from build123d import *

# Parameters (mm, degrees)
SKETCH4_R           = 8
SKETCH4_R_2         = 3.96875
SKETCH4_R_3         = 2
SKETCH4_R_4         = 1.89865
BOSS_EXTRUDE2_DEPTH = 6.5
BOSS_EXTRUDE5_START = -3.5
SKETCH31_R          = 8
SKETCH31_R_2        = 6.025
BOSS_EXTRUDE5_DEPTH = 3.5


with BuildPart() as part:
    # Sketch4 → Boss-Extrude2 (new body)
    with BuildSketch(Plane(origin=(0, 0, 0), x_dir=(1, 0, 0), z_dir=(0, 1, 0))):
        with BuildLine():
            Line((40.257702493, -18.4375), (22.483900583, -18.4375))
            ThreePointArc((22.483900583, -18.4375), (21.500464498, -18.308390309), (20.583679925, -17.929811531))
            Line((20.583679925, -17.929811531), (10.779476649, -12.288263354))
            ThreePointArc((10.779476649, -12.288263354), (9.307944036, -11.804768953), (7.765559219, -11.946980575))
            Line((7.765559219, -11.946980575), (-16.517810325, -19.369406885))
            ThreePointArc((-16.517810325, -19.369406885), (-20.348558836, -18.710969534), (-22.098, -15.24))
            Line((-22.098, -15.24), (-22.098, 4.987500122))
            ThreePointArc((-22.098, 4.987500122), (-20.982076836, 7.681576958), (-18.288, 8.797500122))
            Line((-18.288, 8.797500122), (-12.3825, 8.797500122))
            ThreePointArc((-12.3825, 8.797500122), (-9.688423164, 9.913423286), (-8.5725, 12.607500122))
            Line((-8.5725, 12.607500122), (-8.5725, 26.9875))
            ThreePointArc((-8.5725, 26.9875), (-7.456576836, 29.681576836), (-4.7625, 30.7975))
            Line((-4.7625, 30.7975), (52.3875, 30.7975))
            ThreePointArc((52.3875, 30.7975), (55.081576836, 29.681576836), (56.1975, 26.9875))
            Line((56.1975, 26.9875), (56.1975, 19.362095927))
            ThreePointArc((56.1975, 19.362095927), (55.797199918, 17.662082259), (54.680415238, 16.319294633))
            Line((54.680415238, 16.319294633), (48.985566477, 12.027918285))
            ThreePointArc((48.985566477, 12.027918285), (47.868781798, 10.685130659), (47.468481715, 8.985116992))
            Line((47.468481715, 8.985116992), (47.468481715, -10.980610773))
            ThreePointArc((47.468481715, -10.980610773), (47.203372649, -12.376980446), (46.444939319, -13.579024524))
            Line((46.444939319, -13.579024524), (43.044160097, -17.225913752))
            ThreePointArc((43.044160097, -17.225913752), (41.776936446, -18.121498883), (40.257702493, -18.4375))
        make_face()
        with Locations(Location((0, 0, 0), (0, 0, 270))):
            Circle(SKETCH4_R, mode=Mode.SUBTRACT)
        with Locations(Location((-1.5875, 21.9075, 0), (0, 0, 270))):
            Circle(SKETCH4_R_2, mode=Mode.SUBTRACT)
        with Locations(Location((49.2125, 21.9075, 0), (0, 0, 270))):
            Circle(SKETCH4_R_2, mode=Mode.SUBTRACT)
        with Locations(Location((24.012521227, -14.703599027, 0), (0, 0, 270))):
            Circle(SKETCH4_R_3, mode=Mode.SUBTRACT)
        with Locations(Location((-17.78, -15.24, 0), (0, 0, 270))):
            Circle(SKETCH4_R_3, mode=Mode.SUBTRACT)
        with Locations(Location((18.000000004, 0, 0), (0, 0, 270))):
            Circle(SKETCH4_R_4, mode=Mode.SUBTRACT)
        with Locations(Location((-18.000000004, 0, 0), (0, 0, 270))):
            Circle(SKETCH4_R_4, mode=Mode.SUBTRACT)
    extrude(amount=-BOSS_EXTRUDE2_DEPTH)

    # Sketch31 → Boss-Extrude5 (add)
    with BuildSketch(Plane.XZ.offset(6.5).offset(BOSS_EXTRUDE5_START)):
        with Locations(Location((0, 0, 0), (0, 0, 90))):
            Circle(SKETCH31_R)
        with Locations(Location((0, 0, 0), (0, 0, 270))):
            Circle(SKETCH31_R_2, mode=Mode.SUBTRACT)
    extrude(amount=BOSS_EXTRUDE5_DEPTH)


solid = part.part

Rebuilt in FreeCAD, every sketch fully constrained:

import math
import FreeCAD as App
import Part
import Sketcher
from FreeCAD import Vector
Q = App.Units.Quantity

doc = App.newDocument("Part")
params = doc.addObject("Spreadsheet::Sheet", "Params")
for row, (alias, value) in enumerate([
    ("sketch1_diameter", "4 mm"),
    ("sketch1_diameter2", "16 mm"),
    ("sketch1_radius", "3.81 mm"),
    ("sketch1_width", "57.15 mm"),
    ("pad1_length", "6.5 mm"),
    ("sketch2_diameter", "16 mm"),
    ("sketch2_diameter2", "12.05 mm"),
    ("pad2_length", "3.5 mm"),
], start=1):
    params.set(f"A{row}", alias)
    params.set(f"B{row}", "=" + value)
    params.setAlias(f"B{row}", alias)

body = doc.addObject("PartDesign::Body", "Body")

# Sketch on XZ plane
sketch1 = body.newObject("Sketcher::SketchObject", "Sketch")
sketch1.AttachmentSupport = (doc.getObject("XZ_Plane"), [""])
sketch1.MapMode = "FlatFace"
sketch1.addGeometry([
    Part.LineSegment(Vector(22.5, 18.4, 0), Vector(40.3, 18.4, 0)),  # 0
    Part.ArcOfCircle(Part.Circle(Vector(40.3, 14.6, 0), Vector(0, 0, 1), 3.8), math.radians(43), math.radians(90)),  # 1
    Part.LineSegment(Vector(43, 17.2, 0), Vector(46.4, 13.6, 0)),  # 2
    Part.ArcOfCircle(Part.Circle(Vector(43.7, 11, 0), Vector(0, 0, 1), 3.8), math.radians(0), math.radians(43)),  # 3
    Part.LineSegment(Vector(47.5, 11, 0), Vector(47.5, -9, 0)),  # 4
    Part.ArcOfCircle(Part.Circle(Vector(51.3, -9, 0), Vector(0, 0, 1), 3.8), math.radians(-180), math.radians(-127)),  # 5
    Part.LineSegment(Vector(49, -12, 0), Vector(54.7, -16.3, 0)),  # 6
    Part.ArcOfCircle(Part.Circle(Vector(52.4, -19.4, 0), Vector(0, 0, 1), 3.8), math.radians(0), math.radians(53)),  # 7
    Part.LineSegment(Vector(56.2, -19.4, 0), Vector(56.2, -27, 0)),  # 8
    Part.ArcOfCircle(Part.Circle(Vector(52.4, -27, 0), Vector(0, 0, 1), 3.8), math.radians(-90), math.radians(0)),  # 9
    Part.LineSegment(Vector(52.4, -30.8, 0), Vector(-4.8, -30.8, 0)),  # 10
    Part.ArcOfCircle(Part.Circle(Vector(-4.8, -27, 0), Vector(0, 0, 1), 3.8), math.radians(-180), math.radians(-90)),  # 11
    Part.LineSegment(Vector(-8.6, -27, 0), Vector(-8.6, -12.6, 0)),  # 12
    Part.ArcOfCircle(Part.Circle(Vector(-12.4, -12.6, 0), Vector(0, 0, 1), 3.8), math.radians(0), math.radians(90)),  # 13
    Part.LineSegment(Vector(-12.4, -8.8, 0), Vector(-18.3, -8.8, 0)),  # 14
    Part.ArcOfCircle(Part.Circle(Vector(-18.3, -5, 0), Vector(0, 0, 1), 3.8), math.radians(-180), math.radians(-90)),  # 15
    Part.LineSegment(Vector(-22.1, -5, 0), Vector(-22.1, 15.2, 0)),  # 16
    Part.ArcOfCircle(Part.Circle(Vector(-17.8, 15.2, 0), Vector(0, 0, 1), 4.3), math.radians(73), math.radians(180)),  # 17
    Part.LineSegment(Vector(-16.5, 19.4, 0), Vector(7.8, 11.9, 0)),  # 18
    Part.ArcOfCircle(Part.Circle(Vector(8.9, 15.6, 0), Vector(0, 0, 1), 3.8), math.radians(-107), math.radians(-60)),  # 19
    Part.LineSegment(Vector(10.8, 12.3, 0), Vector(20.6, 17.9, 0)),  # 20
    Part.ArcOfCircle(Part.Circle(Vector(22.5, 14.6, 0), Vector(0, 0, 1), 3.8), math.radians(90), math.radians(120)),  # 21
    Part.Circle(Vector(24, 14.7, 0), Vector(0, 0, 1), 2),  # 22
    Part.Circle(Vector(18, 0, 0), Vector(0, 0, 1), 1.9),  # 23
    Part.Circle(Vector(-17.8, 15.2, 0), Vector(0, 0, 1), 2),  # 24
    Part.Circle(Vector(0, 0, 0), Vector(0, 0, 1), 8),  # 25
    Part.Circle(Vector(-18, 0, 0), Vector(0, 0, 1), 1.9),  # 26
    Part.Circle(Vector(49.2, -21.9, 0), Vector(0, 0, 1), 4),  # 27
    Part.Circle(Vector(-1.6, -21.9, 0), Vector(0, 0, 1), 4),  # 28
], False)
sketch1.addConstraint([
    Sketcher.Constraint("Tangent", 0, 2, 1, 2),
    Sketcher.Constraint("Tangent", 1, 1, 2, 1),
    Sketcher.Constraint("Tangent", 2, 2, 3, 2),
    Sketcher.Constraint("Tangent", 3, 1, 4, 1),
    Sketcher.Constraint("Tangent", 4, 2, 5, 1),
    Sketcher.Constraint("Tangent", 5, 2, 6, 1),
    Sketcher.Constraint("Tangent", 6, 2, 7, 2),
    Sketcher.Constraint("Tangent", 7, 1, 8, 1),
    Sketcher.Constraint("Tangent", 8, 2, 9, 2),
    Sketcher.Constraint("Tangent", 9, 1, 10, 1),
    Sketcher.Constraint("Tangent", 10, 2, 11, 2),
    Sketcher.Constraint("Tangent", 11, 1, 12, 1),
    Sketcher.Constraint("Tangent", 12, 2, 13, 1),
    Sketcher.Constraint("Tangent", 13, 2, 14, 1),
    Sketcher.Constraint("Tangent", 14, 2, 15, 2),
    Sketcher.Constraint("Tangent", 15, 1, 16, 1),
    Sketcher.Constraint("Tangent", 16, 2, 17, 2),
    Sketcher.Constraint("Tangent", 17, 1, 18, 1),
    Sketcher.Constraint("Tangent", 18, 2, 19, 1),
    Sketcher.Constraint("Tangent", 19, 2, 20, 1),
    Sketcher.Constraint("Tangent", 20, 2, 21, 2),
    Sketcher.Constraint("Tangent", 21, 1, 0, 1),
    Sketcher.Constraint("Horizontal", 0),
    Sketcher.Constraint("Vertical", 4),
    Sketcher.Constraint("Vertical", 8),
    Sketcher.Constraint("Horizontal", 10),
    Sketcher.Constraint("Vertical", 12),
    Sketcher.Constraint("Horizontal", 14),
    Sketcher.Constraint("Vertical", 16),
    Sketcher.Constraint("Coincident", 25, 3, -1, 1),
    Sketcher.Constraint("Coincident", 24, 3, 17, 3),
    Sketcher.Constraint("Equal", 1, 3),
    Sketcher.Constraint("Equal", 3, 5),
    Sketcher.Constraint("Equal", 5, 7),
    Sketcher.Constraint("Equal", 7, 9),
    Sketcher.Constraint("Equal", 9, 11),
    Sketcher.Constraint("Equal", 11, 13),
    Sketcher.Constraint("Equal", 13, 15),
    Sketcher.Constraint("Equal", 15, 19),
    Sketcher.Constraint("Equal", 19, 21),
    Sketcher.Constraint("Equal", 22, 24),
    Sketcher.Constraint("Equal", 23, 26),
    Sketcher.Constraint("Equal", 27, 28),
    Sketcher.Constraint("Symmetric", 23, 3, 26, 3, -1, 1),
    Sketcher.Constraint("PointOnObject", 23, 3, -1),
    Sketcher.Constraint("Horizontal", 27, 3, 28, 3),
    Sketcher.Constraint("Diameter", 22, Q("4 mm")),
    Sketcher.Constraint("Diameter", 25, Q("16 mm")),
    Sketcher.Constraint("Angle", 2, Q("-47 deg")),
    Sketcher.Constraint("Angle", 6, Q("-37 deg")),
    Sketcher.Constraint("Radius", 1, Q("3.81 mm")),
    Sketcher.Constraint("DistanceX", -1, 1, 23, 3, Q("18 mm")),
    Sketcher.Constraint("Radius", 17, Q("4.318 mm")),
    Sketcher.Constraint("DistanceY", 11, 3, 15, 3, Q("22 mm")),
    Sketcher.Constraint("Diameter", 23, Q("3.7973 mm")),
    Sketcher.Constraint("Diameter", 27, Q("7.9375 mm")),
    Sketcher.Constraint("DistanceX", 10, 2, 10, 1, Q("57.15 mm")),
    Sketcher.Constraint("DistanceY", 28, 3, 13, 3, Q("9.3 mm")),
    Sketcher.Constraint("DistanceX", 17, 3, -1, 1, Q("17.78 mm")),
    Sketcher.Constraint("DistanceY", -1, 1, 17, 3, Q("15.24 mm")),
    Sketcher.Constraint("DistanceX", 0, 1, 0, 2, Q("17.773802 mm")),
    Sketcher.Constraint("DistanceX", 14, 2, 14, 1, Q("5.9055 mm")),
    Sketcher.Constraint("DistanceY", 16, 1, 16, 2, Q("20.2275 mm")),
    Sketcher.Constraint("DistanceY", 9, 3, 1, 3, Q("41.615 mm")),
    Sketcher.Constraint("DistanceX", 27, 3, 7, 3, Q("3.175 mm")),
    Sketcher.Constraint("DistanceX", 11, 3, 28, 3, Q("3.175 mm")),
    Sketcher.Constraint("DistanceX", -1, 1, 21, 3, Q("22.483901 mm")),
    Sketcher.Constraint("DistanceY", -1, 1, 22, 3, Q("14.703599 mm")),
    Sketcher.Constraint("Distance", 2, Q("4.986492 mm")),
    Sketcher.Constraint("Distance", 18, Q("25.392409 mm")),
    Sketcher.Constraint("DistanceY", 4, 2, 4, 1, Q("19.965728 mm")),
    Sketcher.Constraint("DistanceX", -1, 1, 22, 3, Q("24.012521 mm")),
    Sketcher.Constraint("DistanceX", 17, 1, -1, 1, Q("16.51781 mm")),
])
sketch1.setExpression("Constraints[46]", "Params.sketch1_diameter")
sketch1.setExpression("Constraints[47]", "Params.sketch1_diameter2")
sketch1.setExpression("Constraints[50]", "Params.sketch1_radius")
sketch1.setExpression("Constraints[56]", "Params.sketch1_width")
pad1 = body.newObject("PartDesign::Pad", "Pad")
pad1.Profile = sketch1
pad1.setExpression("Length", "Params.pad1_length")

# Sketch on XZ plane
sketch2 = body.newObject("Sketcher::SketchObject", "Sketch001")
sketch2.AttachmentSupport = (doc.getObject("XZ_Plane"), [""])
sketch2.MapMode = "FlatFace"
sketch2.AttachmentOffset = App.Placement(Vector(0, 0, 3), App.Rotation())
sketch2.addGeometry([
    Part.Circle(Vector(0, 0, 0), Vector(0, 0, 1), 8),
    Part.Circle(Vector(0, 0, 0), Vector(0, 0, 1), 6),
], False)
sketch2.addConstraint([
    Sketcher.Constraint("Coincident", 0, 3, -1, 1),
    Sketcher.Constraint("Coincident", 1, 3, -1, 1),
    Sketcher.Constraint("Diameter", 0, Q("16 mm")),
    Sketcher.Constraint("Diameter", 1, Q("12.05 mm")),
])
sketch2.setExpression("Constraints[2]", "Params.sketch2_diameter")
sketch2.setExpression("Constraints[3]", "Params.sketch2_diameter2")
pad2 = body.newObject("PartDesign::Pad", "Pad001")
pad2.Profile = sketch2
pad2.setExpression("Length", "Params.pad2_length")

doc.recompute()
